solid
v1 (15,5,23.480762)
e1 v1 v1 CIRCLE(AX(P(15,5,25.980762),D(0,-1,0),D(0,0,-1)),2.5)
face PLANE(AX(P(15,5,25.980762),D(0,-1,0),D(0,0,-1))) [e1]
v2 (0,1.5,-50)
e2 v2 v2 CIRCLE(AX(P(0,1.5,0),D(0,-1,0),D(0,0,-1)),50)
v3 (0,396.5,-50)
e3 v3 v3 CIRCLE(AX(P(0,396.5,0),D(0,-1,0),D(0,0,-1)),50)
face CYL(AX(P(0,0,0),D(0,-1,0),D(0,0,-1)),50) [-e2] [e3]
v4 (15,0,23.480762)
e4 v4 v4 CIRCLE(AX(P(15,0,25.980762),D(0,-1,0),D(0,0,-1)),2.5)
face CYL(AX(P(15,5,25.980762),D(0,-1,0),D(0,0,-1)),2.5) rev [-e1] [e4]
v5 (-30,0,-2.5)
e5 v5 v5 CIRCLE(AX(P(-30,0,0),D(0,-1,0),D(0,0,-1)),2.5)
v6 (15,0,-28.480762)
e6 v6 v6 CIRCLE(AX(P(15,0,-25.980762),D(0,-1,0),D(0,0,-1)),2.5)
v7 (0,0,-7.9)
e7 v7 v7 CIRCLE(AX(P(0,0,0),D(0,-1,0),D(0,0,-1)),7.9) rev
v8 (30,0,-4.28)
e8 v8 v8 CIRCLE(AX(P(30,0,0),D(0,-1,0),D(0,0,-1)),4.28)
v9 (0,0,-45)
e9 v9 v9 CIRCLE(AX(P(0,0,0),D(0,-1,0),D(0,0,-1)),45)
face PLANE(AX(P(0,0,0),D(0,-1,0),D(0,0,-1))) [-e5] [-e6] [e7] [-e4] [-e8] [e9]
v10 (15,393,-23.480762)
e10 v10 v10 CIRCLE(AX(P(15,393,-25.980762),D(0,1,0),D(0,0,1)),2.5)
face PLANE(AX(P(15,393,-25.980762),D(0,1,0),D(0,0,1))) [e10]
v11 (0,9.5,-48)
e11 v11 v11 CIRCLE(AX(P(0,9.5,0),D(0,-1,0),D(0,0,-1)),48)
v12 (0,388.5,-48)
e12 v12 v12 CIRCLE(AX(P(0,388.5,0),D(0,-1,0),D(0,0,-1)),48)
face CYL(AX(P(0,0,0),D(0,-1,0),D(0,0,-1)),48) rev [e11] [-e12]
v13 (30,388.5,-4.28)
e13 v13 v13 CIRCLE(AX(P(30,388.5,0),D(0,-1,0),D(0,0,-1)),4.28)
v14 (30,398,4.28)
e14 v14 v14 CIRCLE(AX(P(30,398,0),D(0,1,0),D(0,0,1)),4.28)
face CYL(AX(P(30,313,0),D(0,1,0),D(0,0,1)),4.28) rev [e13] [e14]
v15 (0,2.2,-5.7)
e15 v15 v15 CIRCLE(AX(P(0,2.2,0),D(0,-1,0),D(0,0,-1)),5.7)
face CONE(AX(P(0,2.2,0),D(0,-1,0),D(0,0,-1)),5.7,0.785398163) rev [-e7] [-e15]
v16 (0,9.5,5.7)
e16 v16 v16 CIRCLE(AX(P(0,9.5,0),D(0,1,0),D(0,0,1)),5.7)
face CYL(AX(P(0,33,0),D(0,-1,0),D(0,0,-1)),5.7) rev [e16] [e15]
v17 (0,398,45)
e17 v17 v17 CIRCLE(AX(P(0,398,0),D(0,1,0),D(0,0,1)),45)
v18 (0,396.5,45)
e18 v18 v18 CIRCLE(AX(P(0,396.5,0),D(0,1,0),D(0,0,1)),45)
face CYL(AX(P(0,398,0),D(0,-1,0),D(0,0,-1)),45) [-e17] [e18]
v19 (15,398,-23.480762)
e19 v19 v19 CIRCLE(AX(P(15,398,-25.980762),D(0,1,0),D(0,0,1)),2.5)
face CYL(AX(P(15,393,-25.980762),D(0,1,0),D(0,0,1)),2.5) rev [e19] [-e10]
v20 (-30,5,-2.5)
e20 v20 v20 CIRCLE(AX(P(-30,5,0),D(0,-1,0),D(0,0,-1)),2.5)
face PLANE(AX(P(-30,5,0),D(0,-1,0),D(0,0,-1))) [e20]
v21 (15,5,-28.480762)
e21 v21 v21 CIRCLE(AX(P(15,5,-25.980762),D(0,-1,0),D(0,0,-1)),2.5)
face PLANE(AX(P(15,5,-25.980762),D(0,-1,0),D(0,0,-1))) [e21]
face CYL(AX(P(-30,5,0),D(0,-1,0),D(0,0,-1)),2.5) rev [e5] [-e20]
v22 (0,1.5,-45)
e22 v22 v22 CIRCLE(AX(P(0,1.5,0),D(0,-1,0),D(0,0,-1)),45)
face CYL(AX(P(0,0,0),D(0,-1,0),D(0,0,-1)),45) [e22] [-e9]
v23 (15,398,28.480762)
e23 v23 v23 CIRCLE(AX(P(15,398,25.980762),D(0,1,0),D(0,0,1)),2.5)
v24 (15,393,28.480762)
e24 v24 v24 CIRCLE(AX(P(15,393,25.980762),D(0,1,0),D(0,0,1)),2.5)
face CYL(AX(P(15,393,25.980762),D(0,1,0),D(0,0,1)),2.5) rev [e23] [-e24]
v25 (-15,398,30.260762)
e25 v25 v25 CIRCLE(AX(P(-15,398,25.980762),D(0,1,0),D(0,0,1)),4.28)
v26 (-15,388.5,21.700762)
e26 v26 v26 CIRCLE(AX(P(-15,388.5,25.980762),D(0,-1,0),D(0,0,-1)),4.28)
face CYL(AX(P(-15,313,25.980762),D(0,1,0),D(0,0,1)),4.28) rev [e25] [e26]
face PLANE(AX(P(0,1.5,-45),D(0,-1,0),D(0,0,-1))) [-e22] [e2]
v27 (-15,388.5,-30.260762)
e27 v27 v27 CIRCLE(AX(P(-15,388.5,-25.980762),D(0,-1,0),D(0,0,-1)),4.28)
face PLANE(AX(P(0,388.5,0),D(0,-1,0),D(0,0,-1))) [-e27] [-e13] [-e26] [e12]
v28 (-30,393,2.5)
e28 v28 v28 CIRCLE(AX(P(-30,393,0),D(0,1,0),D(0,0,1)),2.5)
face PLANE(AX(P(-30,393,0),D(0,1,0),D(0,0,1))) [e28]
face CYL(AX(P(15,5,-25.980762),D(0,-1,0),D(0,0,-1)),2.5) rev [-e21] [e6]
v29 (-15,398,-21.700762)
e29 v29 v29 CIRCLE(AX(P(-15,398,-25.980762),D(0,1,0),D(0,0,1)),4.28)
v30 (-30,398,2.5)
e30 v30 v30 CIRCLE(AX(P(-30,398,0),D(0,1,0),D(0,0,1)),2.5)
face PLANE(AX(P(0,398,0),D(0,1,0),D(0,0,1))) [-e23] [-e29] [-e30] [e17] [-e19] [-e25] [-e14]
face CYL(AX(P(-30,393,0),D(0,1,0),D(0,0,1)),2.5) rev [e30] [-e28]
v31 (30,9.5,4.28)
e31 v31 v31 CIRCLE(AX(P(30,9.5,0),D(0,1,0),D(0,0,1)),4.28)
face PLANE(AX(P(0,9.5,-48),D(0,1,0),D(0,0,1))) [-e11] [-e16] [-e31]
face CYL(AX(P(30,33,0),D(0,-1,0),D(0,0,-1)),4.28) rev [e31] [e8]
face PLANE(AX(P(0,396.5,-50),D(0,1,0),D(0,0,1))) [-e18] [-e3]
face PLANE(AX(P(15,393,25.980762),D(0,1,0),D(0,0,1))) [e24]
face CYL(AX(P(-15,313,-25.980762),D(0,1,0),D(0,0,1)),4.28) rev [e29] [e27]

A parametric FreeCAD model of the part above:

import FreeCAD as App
import Part
import Sketcher

V = App.Vector


def edges_at(feature, points):
    """Names of the edges that pass closest to the given points."""
    edges = feature.Shape.Edges
    near = lambda p: min(range(len(edges)), key=lambda i: edges[i].distToShape(Part.Vertex(*p))[0])
    return sorted({f"Edge{near(p) + 1}" for p in points})

doc = App.newDocument("Part")
body = doc.addObject("PartDesign::Body", "Body")

# Sketch on YZ plane
sketch1 = body.newObject("Sketcher::SketchObject", "Sketch")
sketch1.AttachmentSupport = (doc.getObject("YZ_Plane"), [""])
sketch1.MapMode = "FlatFace"
sketch1.addGeometry(Part.LineSegment(V(1.5, -45, 0), V(1.5, -50, 0)), False)
sketch1.addGeometry(Part.LineSegment(V(1.5, -50, 0), V(396.5, -50, 0)), False)
sketch1.addGeometry(Part.LineSegment(V(396.5, -50, 0), V(396.5, 0, 0)), False)
sketch1.addGeometry(Part.LineSegment(V(396.5, 0, 0), V(388.5, 0, 0)), False)
sketch1.addGeometry(Part.LineSegment(V(388.5, 0, 0), V(388.5, -48, 0)), False)
sketch1.addGeometry(Part.LineSegment(V(388.5, -48, 0), V(9.5, -48, 0)), False)
sketch1.addGeometry(Part.LineSegment(V(9.5, -48, 0), V(9.5, 0, 0)), False)
sketch1.addGeometry(Part.LineSegment(V(9.5, 0, 0), V(0, 0, 0)), False)
sketch1.addGeometry(Part.LineSegment(V(0, 0, 0), V(0, -45, 0)), False)
sketch1.addGeometry(Part.LineSegment(V(0, -45, 0), V(1.5, -45, 0)), False)
sketch1.addConstraint(Sketcher.Constraint("Coincident", 0, 2, 1, 1))
sketch1.addConstraint(Sketcher.Constraint("Coincident", 1, 2, 2, 1))
sketch1.addConstraint(Sketcher.Constraint("Coincident", 2, 2, 3, 1))
sketch1.addConstraint(Sketcher.Constraint("Coincident", 3, 2, 4, 1))
sketch1.addConstraint(Sketcher.Constraint("Coincident", 4, 2, 5, 1))
sketch1.addConstraint(Sketcher.Constraint("Coincident", 5, 2, 6, 1))
sketch1.addConstraint(Sketcher.Constraint("Coincident", 6, 2, 7, 1))
sketch1.addConstraint(Sketcher.Constraint("Coincident", 7, 2, 8, 1))
sketch1.addConstraint(Sketcher.Constraint("Coincident", 8, 2, 9, 1))
sketch1.addConstraint(Sketcher.Constraint("Coincident", 9, 2, 0, 1))
sketch1.addConstraint(Sketcher.Constraint("Vertical", 0))
sketch1.addConstraint(Sketcher.Constraint("Horizontal", 1))
sketch1.addConstraint(Sketcher.Constraint("Vertical", 2))
sketch1.addConstraint(Sketcher.Constraint("Horizontal", 3))
sketch1.addConstraint(Sketcher.Constraint("Vertical", 4))
sketch1.addConstraint(Sketcher.Constraint("Horizontal", 5))
sketch1.addConstraint(Sketcher.Constraint("Vertical", 6))
sketch1.addConstraint(Sketcher.Constraint("Horizontal", 7))
sketch1.addConstraint(Sketcher.Constraint("Vertical", 8))
sketch1.addConstraint(Sketcher.Constraint("Horizontal", 9))
sketch1.addConstraint(Sketcher.Constraint("Coincident", 7, 2, -1, 1))
sketch1.addConstraint(Sketcher.Constraint("PointOnObject", 2, 2, -1))
sketch1.addConstraint(Sketcher.Constraint("DistanceX", 1, 1, 1, 2, 395.0))
sketch1.addConstraint(Sketcher.Constraint("DistanceX", 3, 2, 3, 1, 8.0))
sketch1.addConstraint(Sketcher.Constraint("DistanceX", 5, 2, 5, 1, 379.0))
sketch1.addConstraint(Sketcher.Constraint("DistanceY", 0, 2, 0, 1, 5.0))
sketch1.addConstraint(Sketcher.Constraint("DistanceY", 2, 1, 2, 2, 50.0))
sketch1.addConstraint(Sketcher.Constraint("DistanceY", 4, 2, 4, 1, 48.0))
sketch1.addConstraint(Sketcher.Constraint("DistanceX", 7, 2, 7, 1, 9.5))
revolution = body.newObject("PartDesign::Revolution", "Revolution")
revolution.Profile = sketch1
revolution.ReferenceAxis = (sketch1, ["H_Axis"])
revolution.Angle = 360

# Sketch on XZ plane
sketch2 = body.newObject("Sketcher::SketchObject", "Sketch001")
sketch2.AttachmentSupport = (doc.getObject("XZ_Plane"), [""])
sketch2.MapMode = "FlatFace"
sketch2.addGeometry(Part.Circle(V(0, 0, 0), V(0, 0, 1), 5.7), False)
sketch2.addGeometry(Part.Circle(V(30, 0, 0), V(0, 0, 1), 4.28), False)
sketch2.addConstraint(Sketcher.Constraint("Coincident", 0, 3, -1, 1))
sketch2.addConstraint(Sketcher.Constraint("PointOnObject", 1, 3, -1))
sketch2.addConstraint(Sketcher.Constraint("Diameter", 0, 11.4))
sketch2.addConstraint(Sketcher.Constraint("Diameter", 1, 8.56))
sketch2.addConstraint(Sketcher.Constraint("DistanceX", -1, 1, 1, 3, 30.0))
pocket1 = body.newObject("PartDesign::Pocket", "Pocket")
pocket1.Profile = sketch2
pocket1.Length = 33

# Sketch on XZ plane
sketch3 = body.newObject("Sketcher::SketchObject", "Sketch002")
sketch3.AttachmentSupport = (doc.getObject("XZ_Plane"), [""])
sketch3.MapMode = "FlatFace"
sketch3.addGeometry(Part.Circle(V(-30, 0, 0), V(0, 0, 1), 2.5), False)
sketch3.addGeometry(Part.Circle(V(15, 25.980762, 0), V(0, 0, 1), 2.5), False)
sketch3.addGeometry(Part.Circle(V(15, -25.980762, 0), V(0, 0, 1), 2.5), False)
sketch3.addConstraint(Sketcher.Constraint("Equal", 0, 1))
sketch3.addConstraint(Sketcher.Constraint("Equal", 1, 2))
sketch3.addConstraint(Sketcher.Constraint("Symmetric", 1, 3, 2, 3, -1))
sketch3.addConstraint(Sketcher.Constraint("PointOnObject", 0, 3, -1))
sketch3.addConstraint(Sketcher.Constraint("Diameter", 0, 5.0))
sketch3.addConstraint(Sketcher.Constraint("DistanceX", 0, 3, -1, 1, 30.0))
sketch3.addConstraint(Sketcher.Constraint("DistanceX", -1, 1, 1, 3, 15.0))
sketch3.addConstraint(Sketcher.Constraint("DistanceY", -1, 1, 1, 3, 25.980762))
pocket2 = body.newObject("PartDesign::Pocket", "Pocket001")
pocket2.Profile = sketch3
pocket2.Length = 5
doc.recompute()

chamfer = body.newObject("PartDesign::Chamfer", "Chamfer")
chamfer.Base = (pocket2, edges_at(pocket2, [(0, 0, 5.7)]))
chamfer.Size = 2.2

# Sketch on XZ plane
sketch4 = body.newObject("Sketcher::SketchObject", "Sketch003")
sketch4.AttachmentSupport = (doc.getObject("XZ_Plane"), [""])
sketch4.MapMode = "FlatFace"
sketch4.AttachmentOffset = App.Placement(V(0, 0, -398), App.Rotation())
sketch4.addGeometry(Part.Circle(V(0, 0, 0), V(0, 0, 1), 45), False)
sketch4.addConstraint(Sketcher.Constraint("Coincident", 0, 3, -1, 1))
sketch4.addConstraint(Sketcher.Constraint("Diameter", 0, 90.0))
pad1 = body.newObject("PartDesign::Pad", "Pad")
pad1.Profile = sketch4
pad1.Length = 1.5

# Sketch on XZ plane
sketch5 = body.newObject("Sketcher::SketchObject", "Sketch004")
sketch5.AttachmentSupport = (doc.getObject("XZ_Plane"), [""])
sketch5.MapMode = "FlatFace"
sketch5.AttachmentOffset = App.Placement(V(0, 0, -393), App.Rotation())
sketch5.addGeometry(Part.Circle(V(-30, 0, 0), V(0, 0, 1), 2.5), False)
sketch5.addGeometry(Part.Circle(V(15, -25.980762, 0), V(0, 0, 1), 2.5), False)
sketch5.addGeometry(Part.Circle(V(15, 25.980762, 0), V(0, 0, 1), 2.5), False)
sketch5.addConstraint(Sketcher.Constraint("Equal", 0, 1))
sketch5.addConstraint(Sketcher.Constraint("Equal", 1, 2))
sketch5.addConstraint(Sketcher.Constraint("Symmetric", 1, 3, 2, 3, -1))
sketch5.addConstraint(Sketcher.Constraint("PointOnObject", 0, 3, -1))
sketch5.addConstraint(Sketcher.Constraint("Diameter", 0, 5.0))
sketch5.addConstraint(Sketcher.Constraint("DistanceX", 0, 3, -1, 1, 30.0))
sketch5.addConstraint(Sketcher.Constraint("DistanceX", -1, 1, 1, 3, 15.0))
sketch5.addConstraint(Sketcher.Constraint("DistanceY", 1, 3, -1, 1, 25.980762))
pocket3 = body.newObject("PartDesign::Pocket", "Pocket002")
pocket3.Profile = sketch5
pocket3.Length = 5

# Sketch on XZ plane
sketch6 = body.newObject("Sketcher::SketchObject", "Sketch005")
sketch6.AttachmentSupport = (doc.getObject("XZ_Plane"), [""])
sketch6.MapMode = "FlatFace"
sketch6.AttachmentOffset = App.Placement(V(0, 0, -313), App.Rotation())
sketch6.addGeometry(Part.Circle(V(30, 0, 0), V(0, 0, 1), 4.28), False)
sketch6.addGeometry(Part.Circle(V(-15, 25.980762, 0), V(0, 0, 1), 4.28), False)
sketch6.addGeometry(Part.Circle(V(-15, -25.980762, 0), V(0, 0, 1), 4.28), False)
sketch6.addConstraint(Sketcher.Constraint("Equal", 0, 1))
sketch6.addConstraint(Sketcher.Constraint("Equal", 1, 2))
sketch6.addConstraint(Sketcher.Constraint("Symmetric", 1, 3, 2, 3, -1))
sketch6.addConstraint(Sketcher.Constraint("PointOnObject", 0, 3, -1))
sketch6.addConstraint(Sketcher.Constraint("Diameter", 0, 8.56))
sketch6.addConstraint(Sketcher.Constraint("DistanceX", -1, 1, 0, 3, 30.0))
sketch6.addConstraint(Sketcher.Constraint("DistanceX", 1, 3, -1, 1, 15.0))
sketch6.addConstraint(Sketcher.Constraint("DistanceY", -1, 1, 1, 3, 25.980762))
pocket4 = body.newObject("PartDesign::Pocket", "Pocket003")
pocket4.Profile = sketch6
pocket4.Length = 85

doc.recompute()
